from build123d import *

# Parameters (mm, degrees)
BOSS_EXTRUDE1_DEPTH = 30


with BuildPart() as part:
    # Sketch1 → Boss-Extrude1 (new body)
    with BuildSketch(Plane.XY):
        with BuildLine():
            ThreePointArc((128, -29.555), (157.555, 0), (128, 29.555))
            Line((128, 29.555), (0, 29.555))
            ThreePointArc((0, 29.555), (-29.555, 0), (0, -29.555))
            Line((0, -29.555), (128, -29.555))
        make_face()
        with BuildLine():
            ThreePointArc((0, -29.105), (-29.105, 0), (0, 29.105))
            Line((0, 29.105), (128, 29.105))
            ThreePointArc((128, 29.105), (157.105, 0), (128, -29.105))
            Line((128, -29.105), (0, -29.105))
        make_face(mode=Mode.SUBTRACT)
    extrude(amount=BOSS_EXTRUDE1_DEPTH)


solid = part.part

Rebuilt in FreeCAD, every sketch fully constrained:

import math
import FreeCAD as App
import Part
import Sketcher

doc = App.newDocument("Part")
params = doc.addObject("Spreadsheet::Sheet", "Params")
for row, (alias, value) in enumerate([
    ("sketch1_width", "128 mm"),
    ("pad1_length", "30 mm"),
], start=1):
    params.set(f"A{row}", alias)
    params.set(f"B{row}", "=" + value)
    params.setAlias(f"B{row}", alias)

body = doc.addObject("PartDesign::Body", "Body")

# Sketch on XY plane
sketch1 = body.newObject("Sketcher::SketchObject", "Sketch")
sketch1.AttachmentSupport = (doc.getObject("XY_Plane"), [""])
sketch1.MapMode = "FlatFace"
sketch1.addGeometry([
    Part.ArcOfCircle(Part.Circle(App.Vector(128, 0, 0), App.Vector(0, 0, 1), 30), math.radians(-90), math.radians(90)),  # 0
    Part.LineSegment(App.Vector(128, 30, 0), App.Vector(0, 30, 0)),  # 1
    Part.ArcOfCircle(Part.Circle(App.Vector(0, 0, 0), App.Vector(0, 0, 1), 30), math.radians(90), math.radians(270)),  # 2
    Part.LineSegment(App.Vector(0, -30, 0), App.Vector(128, -30, 0)),  # 3
    Part.LineSegment(App.Vector(128, -29, 0), App.Vector(0, -29, 0)),  # 4
    Part.ArcOfCircle(Part.Circle(App.Vector(0, 0, 0), App.Vector(0, 0, 1), 29), math.radians(90), math.radians(270)),  # 5
    Part.LineSegment(App.Vector(0, 29, 0), App.Vector(128, 29, 0)),  # 6
    Part.ArcOfCircle(Part.Circle(App.Vector(128, 0, 0), App.Vector(0, 0, 1), 29), math.radians(-90), math.radians(90)),  # 7
], False)
sketch1.addConstraint([
    Sketcher.Constraint("Tangent", 0, 2, 1, 1),
    Sketcher.Constraint("Tangent", 1, 2, 2, 1),
    Sketcher.Constraint("Tangent", 2, 2, 3, 1),
    Sketcher.Constraint("Tangent", 3, 2, 0, 1),
    Sketcher.Constraint("Tangent", 4, 2, 5, 2),
    Sketcher.Constraint("Tangent", 5, 1, 6, 1),
    Sketcher.Constraint("Tangent", 6, 2, 7, 2),
    Sketcher.Constraint("Tangent", 7, 1, 4, 1),
    Sketcher.Constraint("Horizontal", 1),
    Sketcher.Constraint("Horizontal", 3),
    Sketcher.Constraint("Horizontal", 4),
    Sketcher.Constraint("Horizontal", 6),
    Sketcher.Constraint("Coincident", 2, 3, -1, 1),
    Sketcher.Constraint("Coincident", 5, 3, -1, 1),
    Sketcher.Constraint("Vertical", 7, 3, 0, 2),
    Sketcher.Constraint("DistanceX", 1, 2, 1, 1, 128.0),
    Sketcher.Constraint("Radius", 0, 29.555),
    Sketcher.Constraint("Radius", 5, 29.105),
])
sketch1.setExpression("Constraints[15]", "Params.sketch1_width")
pad1 = body.newObject("PartDesign::Pad", "Pad")
pad1.Profile = sketch1
pad1.setExpression("Length", "Params.pad1_length")

doc.recompute()
